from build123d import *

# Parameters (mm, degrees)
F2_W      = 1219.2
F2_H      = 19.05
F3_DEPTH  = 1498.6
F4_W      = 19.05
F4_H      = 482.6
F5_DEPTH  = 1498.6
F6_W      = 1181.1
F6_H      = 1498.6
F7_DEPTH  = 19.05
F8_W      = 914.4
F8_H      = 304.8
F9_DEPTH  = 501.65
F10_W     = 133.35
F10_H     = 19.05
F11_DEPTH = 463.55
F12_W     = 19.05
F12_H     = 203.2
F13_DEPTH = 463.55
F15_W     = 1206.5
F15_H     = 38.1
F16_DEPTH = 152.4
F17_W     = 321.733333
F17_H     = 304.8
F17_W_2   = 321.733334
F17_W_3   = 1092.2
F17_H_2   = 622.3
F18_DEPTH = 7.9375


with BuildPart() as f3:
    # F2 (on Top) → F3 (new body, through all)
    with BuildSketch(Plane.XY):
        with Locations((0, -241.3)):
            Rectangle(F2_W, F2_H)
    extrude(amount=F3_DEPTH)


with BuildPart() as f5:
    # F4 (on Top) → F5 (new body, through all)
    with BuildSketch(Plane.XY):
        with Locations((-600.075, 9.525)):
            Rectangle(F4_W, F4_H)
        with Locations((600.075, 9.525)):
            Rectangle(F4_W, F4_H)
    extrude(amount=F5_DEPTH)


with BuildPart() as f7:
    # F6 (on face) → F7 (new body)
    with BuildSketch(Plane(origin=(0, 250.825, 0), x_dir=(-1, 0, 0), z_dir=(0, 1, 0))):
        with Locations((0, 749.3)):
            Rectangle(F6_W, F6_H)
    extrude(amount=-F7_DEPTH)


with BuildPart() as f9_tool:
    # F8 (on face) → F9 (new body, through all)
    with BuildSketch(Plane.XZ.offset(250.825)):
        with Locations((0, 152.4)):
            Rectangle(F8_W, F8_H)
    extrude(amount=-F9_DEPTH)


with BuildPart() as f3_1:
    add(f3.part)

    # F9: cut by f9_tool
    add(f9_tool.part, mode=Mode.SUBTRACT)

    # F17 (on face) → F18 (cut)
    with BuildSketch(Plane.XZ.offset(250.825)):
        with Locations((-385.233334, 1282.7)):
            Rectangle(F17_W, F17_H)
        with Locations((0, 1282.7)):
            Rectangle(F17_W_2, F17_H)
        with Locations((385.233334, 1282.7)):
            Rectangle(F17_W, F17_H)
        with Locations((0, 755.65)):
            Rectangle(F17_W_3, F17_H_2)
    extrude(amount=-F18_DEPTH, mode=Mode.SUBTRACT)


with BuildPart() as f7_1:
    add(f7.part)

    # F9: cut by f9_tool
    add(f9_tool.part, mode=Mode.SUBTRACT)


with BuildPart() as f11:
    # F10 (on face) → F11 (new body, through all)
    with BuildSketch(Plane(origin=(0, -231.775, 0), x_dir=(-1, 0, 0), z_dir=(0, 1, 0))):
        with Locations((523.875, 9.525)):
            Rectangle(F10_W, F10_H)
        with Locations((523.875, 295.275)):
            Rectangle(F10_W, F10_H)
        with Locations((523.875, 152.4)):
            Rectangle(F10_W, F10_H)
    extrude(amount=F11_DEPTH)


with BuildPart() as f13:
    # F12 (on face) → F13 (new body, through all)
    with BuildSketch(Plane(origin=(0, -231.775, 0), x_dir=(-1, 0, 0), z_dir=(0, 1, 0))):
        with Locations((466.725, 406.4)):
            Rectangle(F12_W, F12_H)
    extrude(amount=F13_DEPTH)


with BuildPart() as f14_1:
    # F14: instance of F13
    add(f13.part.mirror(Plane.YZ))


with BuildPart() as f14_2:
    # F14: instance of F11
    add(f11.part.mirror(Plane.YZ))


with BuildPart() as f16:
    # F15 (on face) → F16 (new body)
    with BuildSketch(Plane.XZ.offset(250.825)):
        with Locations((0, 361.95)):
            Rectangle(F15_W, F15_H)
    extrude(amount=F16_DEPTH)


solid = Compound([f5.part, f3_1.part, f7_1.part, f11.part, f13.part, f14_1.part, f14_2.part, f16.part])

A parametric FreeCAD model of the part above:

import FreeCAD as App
import Part
import Sketcher

V = App.Vector
Q = App.Units.Quantity


def add_polygon(sketch, points):
    """Adds a closed chain of lines whose ends are joined by coincident constraints."""
    first, n = sketch.GeometryCount, len(points)
    for a, b in zip(points, points[1:] + points[:1]):
        sketch.addGeometry(Part.LineSegment(App.Vector(*a, 0), App.Vector(*b, 0)), False)
    for i in range(n):
        sketch.addConstraint(Sketcher.Constraint("Coincident", first + i, 2, first + (i + 1) % n, 1))

doc = App.newDocument("Part")
body = doc.addObject("PartDesign::Body", "Body")

sketch1 = body.newObject("Sketcher::SketchObject", "Sketch")
sketch1.AttachmentSupport = (doc.getObject("XY_Plane"), [""])
sketch1.MapMode = "FlatFace"
add_polygon(sketch1, [(-610, -232), (-610, -251), (610, -251), (610, -232)])
sketch1.addConstraint([
    Sketcher.Constraint("Vertical", 0),
    Sketcher.Constraint("Horizontal", 1),
    Sketcher.Constraint("Vertical", 2),
    Sketcher.Constraint("Horizontal", 3),
    Sketcher.Constraint("DistanceX", 1, 1, 1, 2, Q("48 in")),
    Sketcher.Constraint("DistanceX", 0, 2, -1, 1, Q("24 in")),
    Sketcher.Constraint("DistanceY", 0, 2, 0, 1, Q("0.75 in")),
    Sketcher.Constraint("DistanceY", 0, 2, -1, 1, Q("9.875 in")),
])
pad1 = body.newObject("PartDesign::Pad", "Pad")
pad1.Profile = sketch1
pad1.Length = Q("59 in")
body2 = doc.addObject("PartDesign::Body", "Body001")
body2.AllowCompound = True

sketch2 = body2.newObject("Sketcher::SketchObject", "Sketch001")
sketch2.AttachmentSupport = (doc.getObject("XY_Plane001"), [""])
sketch2.MapMode = "FlatFace"
add_polygon(sketch2, [(-610, 251), (-610, -232), (-591, -232), (-591, 251)])
add_polygon(sketch2, [(591, 251), (591, -232), (610, -232), (610, 251)])
sketch2.addConstraint([
    Sketcher.Constraint("Vertical", 0),
    Sketcher.Constraint("Horizontal", 1),
    Sketcher.Constraint("Vertical", 2),
    Sketcher.Constraint("Horizontal", 3),
    Sketcher.Constraint("Vertical", 4),
    Sketcher.Constraint("Horizontal", 5),
    Sketcher.Constraint("Vertical", 6),
    Sketcher.Constraint("Horizontal", 7),
    Sketcher.Constraint("Symmetric", 1, 2, 4, 2, -2),
    Sketcher.Constraint("Symmetric", 3, 2, 6, 2, -2),
    Sketcher.Constraint("DistanceY", 0, 2, 0, 1, Q("19 in")),
    Sketcher.Constraint("DistanceX", 0, 2, -1, 1, Q("24 in")),
    Sketcher.Constraint("DistanceX", 1, 1, 1, 2, Q("0.75 in")),
    Sketcher.Constraint("DistanceY", 0, 2, -1, 1, Q("9.125 in")),
])
pad2 = body2.newObject("PartDesign::Pad", "Pad001")
pad2.Profile = sketch2
pad2.Length = Q("59 in")
body3 = doc.addObject("PartDesign::Body", "Body002")

sketch3 = body3.newObject("Sketcher::SketchObject", "Sketch002")
sketch3.AttachmentSupport = (doc.getObject("XZ_Plane002"), [""])
sketch3.MapMode = "FlatFace"
sketch3.AttachmentOffset = App.Placement(V(0, 0, -9.875 * 25.4), App.Rotation())
add_polygon(sketch3, [(591, 1499), (591, 0), (-591, 0), (-591, 1499)])
sketch3.addConstraint([
    Sketcher.Constraint("Vertical", 0),
    Sketcher.Constraint("Horizontal", 1),
    Sketcher.Constraint("Vertical", 2),
    Sketcher.Constraint("Horizontal", 3),
    Sketcher.Constraint("Symmetric", 0, 2, 1, 2, -1, 1),
    Sketcher.Constraint("DistanceY", 0, 2, 0, 1, Q("59 in")),
    Sketcher.Constraint("DistanceX", 1, 2, 1, 1, Q("46.5 in")),
])
pad3 = body3.newObject("PartDesign::Pad", "Pad002")
pad3.Profile = sketch3
pad3.Length = Q("0.75 in")
body4 = doc.addObject("PartDesign::Body", "Body003")

sketch4 = body4.newObject("Sketcher::SketchObject", "Sketch003")
sketch4.AttachmentSupport = (doc.getObject("XZ_Plane003"), [""])
sketch4.MapMode = "FlatFace"
sketch4.AttachmentOffset = App.Placement(V(0, 0, 9.875 * 25.4), App.Rotation())
add_polygon(sketch4, [(-457, 305), (-457, 0), (457, 0), (457, 305)])
sketch4.addConstraint([
    Sketcher.Constraint("Vertical", 0),
    Sketcher.Constraint("Horizontal", 1),
    Sketcher.Constraint("Vertical", 2),
    Sketcher.Constraint("Horizontal", 3),
    Sketcher.Constraint("Symmetric", 0, 2, 1, 2, -1, 1),
    Sketcher.Constraint("DistanceX", 1, 1, 1, 2, Q("36 in")),
    Sketcher.Constraint("DistanceY", 0, 2, 0, 1, Q("12 in")),
])
pad4 = body4.newObject("PartDesign::Pad", "Pad003")
pad4.Profile = sketch4
pad4.Length = Q("19.75 in")
pad4.Reversed = True
doc.recompute()

body5 = doc.addObject("PartDesign::Body", "Body004")
body5.BaseFeature = body4
boolean = body.newObject("PartDesign::Boolean", "Boolean")
boolean.Type = "Cut"
boolean.addObjects([body5])
doc.recompute()

sketch5 = body.newObject("Sketcher::SketchObject", "Sketch004")
sketch5.AttachmentSupport = (doc.getObject("XZ_Plane"), [""])
sketch5.MapMode = "FlatFace"
sketch5.AttachmentOffset = App.Placement(V(0, 0, 9.875 * 25.4), App.Rotation())
add_polygon(sketch5, [(-546, 1435), (-546, 1130), (-224, 1130), (-224, 1435)])
add_polygon(sketch5, [(-161, 1435), (-161, 1130), (161, 1130), (161, 1435)])
add_polygon(sketch5, [(224, 1435), (224, 1130), (546, 1130), (546, 1435)])
add_polygon(sketch5, [(-546, 1067), (-546, 444), (546, 444), (546, 1067)])
sketch5.addConstraint([
    Sketcher.Constraint("Vertical", 0),
    Sketcher.Constraint("Horizontal", 1),
    Sketcher.Constraint("Vertical", 2),
    Sketcher.Constraint("Horizontal", 3),
    Sketcher.Constraint("Vertical", 4),
    Sketcher.Constraint("Horizontal", 5),
    Sketcher.Constraint("Vertical", 6),
    Sketcher.Constraint("Horizontal", 7),
    Sketcher.Constraint("Vertical", 8),
    Sketcher.Constraint("Horizontal", 9),
    Sketcher.Constraint("Vertical", 10),
    Sketcher.Constraint("Horizontal", 11),
    Sketcher.Constraint("Vertical", 12),
    Sketcher.Constraint("Horizontal", 13),
    Sketcher.Constraint("Vertical", 14),
    Sketcher.Constraint("Horizontal", 15),
    Sketcher.Constraint("Symmetric", 1, 2, 8, 2, -2),
    Sketcher.Constraint("Symmetric", 3, 2, 10, 2, -2),
    Sketcher.Constraint("Horizontal", 1, 2, 4, 2),
    Sketcher.Constraint("Horizontal", 3, 2, 6, 2),
    Sketcher.Constraint("Vertical", 3, 2, 12, 2),
    Sketcher.Constraint("Vertical", 10, 2, 13, 2),
    Sketcher.Constraint("Equal", 3, 5),
    Sketcher.Constraint("DistanceX", 13, 1, 13, 2, Q("43 in")),
    Sketcher.Constraint("DistanceY", 0, 2, 0, 1, Q("12 in")),
    Sketcher.Constraint("DistanceY", 12, 2, 12, 1, Q("24.5 in")),
    Sketcher.Constraint("DistanceY", -1, 1, 14, 2, Q("42 in")),
    Sketcher.Constraint("DistanceY", 12, 2, 0, 2, Q("27 in")),
    Sketcher.Constraint("DistanceX", 1, 2, 4, 2, Q("2.5 in")),
    Sketcher.Constraint("DistanceX", 5, 2, 8, 2, Q("2.5 in")),
])
pocket1 = body.newObject("PartDesign::Pocket", "Pocket")
pocket1.Profile = sketch5
pocket1.Length = Q("0.3125 in")
doc.recompute()

boolean2 = body3.newObject("PartDesign::Boolean", "Boolean001")
boolean2.Type = "Cut"
boolean2.addObjects([body4])
body6 = doc.addObject("PartDesign::Body", "Body005")
body6.AllowCompound = True

sketch6 = body6.newObject("Sketcher::SketchObject", "Sketch005")
sketch6.AttachmentSupport = (doc.getObject("XZ_Plane005"), [""])
sketch6.MapMode = "FlatFace"
sketch6.AttachmentOffset = App.Placement(V(0, 0, 9.125 * 25.4), App.Rotation())
add_polygon(sketch6, [(-457, 19), (-457, 0), (-591, 0), (-591, 19)])
add_polygon(sketch6, [(-457, 305), (-457, 286), (-591, 286), (-591, 305)])
add_polygon(sketch6, [(-457, 162), (-457, 143), (-591, 143), (-591, 162)])
sketch6.addConstraint([
    Sketcher.Constraint("Vertical", 0),
    Sketcher.Constraint("Horizontal", 1),
    Sketcher.Constraint("Vertical", 2),
    Sketcher.Constraint("Horizontal", 3),
    Sketcher.Constraint("Vertical", 4),
    Sketcher.Constraint("Horizontal", 5),
    Sketcher.Constraint("Vertical", 6),
    Sketcher.Constraint("Horizontal", 7),
    Sketcher.Constraint("Vertical", 8),
    Sketcher.Constraint("Horizontal", 9),
    Sketcher.Constraint("Vertical", 10),
    Sketcher.Constraint("Horizontal", 11),
    Sketcher.Constraint("PointOnObject", 0, 2, -1),
    Sketcher.Constraint("Vertical", 3, 2, 4, 2),
    Sketcher.Constraint("Vertical", 2, 2, 5, 2),
    Sketcher.Constraint("Vertical", 7, 2, 8, 2),
    Sketcher.Constraint("Vertical", 6, 2, 9, 2),
    Sketcher.Constraint("Equal", 2, 4),
    Sketcher.Constraint("Equal", 6, 8),
    Sketcher.Constraint("DistanceX", 0, 2, -1, 1, Q("18 in")),
    Sketcher.Constraint("DistanceY", -1, 1, 6, 2, Q("12 in")),
    Sketcher.Constraint("DistanceX", 1, 2, 1, 1, Q("5.25 in")),
    Sketcher.Constraint("DistanceY", 0, 2, 0, 1, Q("0.75 in")),
    Sketcher.Constraint("DistanceY", -1, 1, 8, 2, Q("5.625 in")),
])
pad5 = body6.newObject("PartDesign::Pad", "Pad004")
pad5.Profile = sketch6
pad5.Length = Q("18.25 in")
pad5.Reversed = True
body7 = doc.addObject("PartDesign::Body", "Body006")

sketch7 = body7.newObject("Sketcher::SketchObject", "Sketch006")
sketch7.AttachmentSupport = (doc.getObject("XZ_Plane006"), [""])
sketch7.MapMode = "FlatFace"
sketch7.AttachmentOffset = App.Placement(V(0, 0, 9.125 * 25.4), App.Rotation())
add_polygon(sketch7, [(-457, 508), (-457, 305), (-476, 305), (-476, 508)])
sketch7.addConstraint([
    Sketcher.Constraint("Vertical", 0),
    Sketcher.Constraint("Horizontal", 1),
    Sketcher.Constraint("Vertical", 2),
    Sketcher.Constraint("Horizontal", 3),
    Sketcher.Constraint("DistanceY", 0, 2, 0, 1, Q("8 in")),
    Sketcher.Constraint("DistanceX", 0, 2, -1, 1, Q("18 in")),
    Sketcher.Constraint("DistanceY", -1, 1, 0, 2, Q("12 in")),
    Sketcher.Constraint("DistanceX", 1, 2, 1, 1, Q("0.75 in")),
])
pad6 = body7.newObject("PartDesign::Pad", "Pad005")
pad6.Profile = sketch7
pad6.Length = Q("18.25 in")
pad6.Reversed = True
body8 = doc.addObject("PartDesign::Body", "Body007")
doc.recompute()

mirroring = doc.addObject("Part::Mirroring", "Mirroring")
mirroring.Source = body7
mirroring.Base = V(0, 0, 0)
mirroring.Normal = V(1, 0, 0)
body8.BaseFeature = mirroring
doc.recompute()
body9 = doc.addObject("PartDesign::Body", "Body008")
body9.AllowCompound = True
doc.recompute()

mirroring2 = doc.addObject("Part::Mirroring", "Mirroring001")
mirroring2.Source = body6
mirroring2.Base = V(0, 0, 0)
mirroring2.Normal = V(1, 0, 0)
body9.BaseFeature = mirroring2
doc.recompute()
body10 = doc.addObject("PartDesign::Body", "Body009")

sketch8 = body10.newObject("Sketcher::SketchObject", "Sketch007")
sketch8.AttachmentSupport = (doc.getObject("XZ_Plane009"), [""])
sketch8.MapMode = "FlatFace"
sketch8.AttachmentOffset = App.Placement(V(0, 0, 9.875 * 25.4), App.Rotation())
add_polygon(sketch8, [(-603, 381), (-603, 343), (603, 343), (603, 381)])
sketch8.addConstraint([
    Sketcher.Constraint("Vertical", 0),
    Sketcher.Constraint("Horizontal", 1),
    Sketcher.Constraint("Vertical", 2),
    Sketcher.Constraint("Horizontal", 3),
    Sketcher.Constraint("DistanceX", 1, 1, 1, 2, Q("47.5 in")),
    Sketcher.Constraint("DistanceY", 0, 2, 0, 1, Q("1.5 in")),
    Sketcher.Constraint("DistanceY", -1, 1, 2, 2, Q("15 in")),
    Sketcher.Constraint("DistanceX", 0, 2, -1, 1, Q("23.75 in")),
])
pad7 = body10.newObject("PartDesign::Pad", "Pad006")
pad7.Profile = sketch8
pad7.Length = Q("6 in")
mirroring.Visibility = False
mirroring2.Visibility = False

doc.recompute()
